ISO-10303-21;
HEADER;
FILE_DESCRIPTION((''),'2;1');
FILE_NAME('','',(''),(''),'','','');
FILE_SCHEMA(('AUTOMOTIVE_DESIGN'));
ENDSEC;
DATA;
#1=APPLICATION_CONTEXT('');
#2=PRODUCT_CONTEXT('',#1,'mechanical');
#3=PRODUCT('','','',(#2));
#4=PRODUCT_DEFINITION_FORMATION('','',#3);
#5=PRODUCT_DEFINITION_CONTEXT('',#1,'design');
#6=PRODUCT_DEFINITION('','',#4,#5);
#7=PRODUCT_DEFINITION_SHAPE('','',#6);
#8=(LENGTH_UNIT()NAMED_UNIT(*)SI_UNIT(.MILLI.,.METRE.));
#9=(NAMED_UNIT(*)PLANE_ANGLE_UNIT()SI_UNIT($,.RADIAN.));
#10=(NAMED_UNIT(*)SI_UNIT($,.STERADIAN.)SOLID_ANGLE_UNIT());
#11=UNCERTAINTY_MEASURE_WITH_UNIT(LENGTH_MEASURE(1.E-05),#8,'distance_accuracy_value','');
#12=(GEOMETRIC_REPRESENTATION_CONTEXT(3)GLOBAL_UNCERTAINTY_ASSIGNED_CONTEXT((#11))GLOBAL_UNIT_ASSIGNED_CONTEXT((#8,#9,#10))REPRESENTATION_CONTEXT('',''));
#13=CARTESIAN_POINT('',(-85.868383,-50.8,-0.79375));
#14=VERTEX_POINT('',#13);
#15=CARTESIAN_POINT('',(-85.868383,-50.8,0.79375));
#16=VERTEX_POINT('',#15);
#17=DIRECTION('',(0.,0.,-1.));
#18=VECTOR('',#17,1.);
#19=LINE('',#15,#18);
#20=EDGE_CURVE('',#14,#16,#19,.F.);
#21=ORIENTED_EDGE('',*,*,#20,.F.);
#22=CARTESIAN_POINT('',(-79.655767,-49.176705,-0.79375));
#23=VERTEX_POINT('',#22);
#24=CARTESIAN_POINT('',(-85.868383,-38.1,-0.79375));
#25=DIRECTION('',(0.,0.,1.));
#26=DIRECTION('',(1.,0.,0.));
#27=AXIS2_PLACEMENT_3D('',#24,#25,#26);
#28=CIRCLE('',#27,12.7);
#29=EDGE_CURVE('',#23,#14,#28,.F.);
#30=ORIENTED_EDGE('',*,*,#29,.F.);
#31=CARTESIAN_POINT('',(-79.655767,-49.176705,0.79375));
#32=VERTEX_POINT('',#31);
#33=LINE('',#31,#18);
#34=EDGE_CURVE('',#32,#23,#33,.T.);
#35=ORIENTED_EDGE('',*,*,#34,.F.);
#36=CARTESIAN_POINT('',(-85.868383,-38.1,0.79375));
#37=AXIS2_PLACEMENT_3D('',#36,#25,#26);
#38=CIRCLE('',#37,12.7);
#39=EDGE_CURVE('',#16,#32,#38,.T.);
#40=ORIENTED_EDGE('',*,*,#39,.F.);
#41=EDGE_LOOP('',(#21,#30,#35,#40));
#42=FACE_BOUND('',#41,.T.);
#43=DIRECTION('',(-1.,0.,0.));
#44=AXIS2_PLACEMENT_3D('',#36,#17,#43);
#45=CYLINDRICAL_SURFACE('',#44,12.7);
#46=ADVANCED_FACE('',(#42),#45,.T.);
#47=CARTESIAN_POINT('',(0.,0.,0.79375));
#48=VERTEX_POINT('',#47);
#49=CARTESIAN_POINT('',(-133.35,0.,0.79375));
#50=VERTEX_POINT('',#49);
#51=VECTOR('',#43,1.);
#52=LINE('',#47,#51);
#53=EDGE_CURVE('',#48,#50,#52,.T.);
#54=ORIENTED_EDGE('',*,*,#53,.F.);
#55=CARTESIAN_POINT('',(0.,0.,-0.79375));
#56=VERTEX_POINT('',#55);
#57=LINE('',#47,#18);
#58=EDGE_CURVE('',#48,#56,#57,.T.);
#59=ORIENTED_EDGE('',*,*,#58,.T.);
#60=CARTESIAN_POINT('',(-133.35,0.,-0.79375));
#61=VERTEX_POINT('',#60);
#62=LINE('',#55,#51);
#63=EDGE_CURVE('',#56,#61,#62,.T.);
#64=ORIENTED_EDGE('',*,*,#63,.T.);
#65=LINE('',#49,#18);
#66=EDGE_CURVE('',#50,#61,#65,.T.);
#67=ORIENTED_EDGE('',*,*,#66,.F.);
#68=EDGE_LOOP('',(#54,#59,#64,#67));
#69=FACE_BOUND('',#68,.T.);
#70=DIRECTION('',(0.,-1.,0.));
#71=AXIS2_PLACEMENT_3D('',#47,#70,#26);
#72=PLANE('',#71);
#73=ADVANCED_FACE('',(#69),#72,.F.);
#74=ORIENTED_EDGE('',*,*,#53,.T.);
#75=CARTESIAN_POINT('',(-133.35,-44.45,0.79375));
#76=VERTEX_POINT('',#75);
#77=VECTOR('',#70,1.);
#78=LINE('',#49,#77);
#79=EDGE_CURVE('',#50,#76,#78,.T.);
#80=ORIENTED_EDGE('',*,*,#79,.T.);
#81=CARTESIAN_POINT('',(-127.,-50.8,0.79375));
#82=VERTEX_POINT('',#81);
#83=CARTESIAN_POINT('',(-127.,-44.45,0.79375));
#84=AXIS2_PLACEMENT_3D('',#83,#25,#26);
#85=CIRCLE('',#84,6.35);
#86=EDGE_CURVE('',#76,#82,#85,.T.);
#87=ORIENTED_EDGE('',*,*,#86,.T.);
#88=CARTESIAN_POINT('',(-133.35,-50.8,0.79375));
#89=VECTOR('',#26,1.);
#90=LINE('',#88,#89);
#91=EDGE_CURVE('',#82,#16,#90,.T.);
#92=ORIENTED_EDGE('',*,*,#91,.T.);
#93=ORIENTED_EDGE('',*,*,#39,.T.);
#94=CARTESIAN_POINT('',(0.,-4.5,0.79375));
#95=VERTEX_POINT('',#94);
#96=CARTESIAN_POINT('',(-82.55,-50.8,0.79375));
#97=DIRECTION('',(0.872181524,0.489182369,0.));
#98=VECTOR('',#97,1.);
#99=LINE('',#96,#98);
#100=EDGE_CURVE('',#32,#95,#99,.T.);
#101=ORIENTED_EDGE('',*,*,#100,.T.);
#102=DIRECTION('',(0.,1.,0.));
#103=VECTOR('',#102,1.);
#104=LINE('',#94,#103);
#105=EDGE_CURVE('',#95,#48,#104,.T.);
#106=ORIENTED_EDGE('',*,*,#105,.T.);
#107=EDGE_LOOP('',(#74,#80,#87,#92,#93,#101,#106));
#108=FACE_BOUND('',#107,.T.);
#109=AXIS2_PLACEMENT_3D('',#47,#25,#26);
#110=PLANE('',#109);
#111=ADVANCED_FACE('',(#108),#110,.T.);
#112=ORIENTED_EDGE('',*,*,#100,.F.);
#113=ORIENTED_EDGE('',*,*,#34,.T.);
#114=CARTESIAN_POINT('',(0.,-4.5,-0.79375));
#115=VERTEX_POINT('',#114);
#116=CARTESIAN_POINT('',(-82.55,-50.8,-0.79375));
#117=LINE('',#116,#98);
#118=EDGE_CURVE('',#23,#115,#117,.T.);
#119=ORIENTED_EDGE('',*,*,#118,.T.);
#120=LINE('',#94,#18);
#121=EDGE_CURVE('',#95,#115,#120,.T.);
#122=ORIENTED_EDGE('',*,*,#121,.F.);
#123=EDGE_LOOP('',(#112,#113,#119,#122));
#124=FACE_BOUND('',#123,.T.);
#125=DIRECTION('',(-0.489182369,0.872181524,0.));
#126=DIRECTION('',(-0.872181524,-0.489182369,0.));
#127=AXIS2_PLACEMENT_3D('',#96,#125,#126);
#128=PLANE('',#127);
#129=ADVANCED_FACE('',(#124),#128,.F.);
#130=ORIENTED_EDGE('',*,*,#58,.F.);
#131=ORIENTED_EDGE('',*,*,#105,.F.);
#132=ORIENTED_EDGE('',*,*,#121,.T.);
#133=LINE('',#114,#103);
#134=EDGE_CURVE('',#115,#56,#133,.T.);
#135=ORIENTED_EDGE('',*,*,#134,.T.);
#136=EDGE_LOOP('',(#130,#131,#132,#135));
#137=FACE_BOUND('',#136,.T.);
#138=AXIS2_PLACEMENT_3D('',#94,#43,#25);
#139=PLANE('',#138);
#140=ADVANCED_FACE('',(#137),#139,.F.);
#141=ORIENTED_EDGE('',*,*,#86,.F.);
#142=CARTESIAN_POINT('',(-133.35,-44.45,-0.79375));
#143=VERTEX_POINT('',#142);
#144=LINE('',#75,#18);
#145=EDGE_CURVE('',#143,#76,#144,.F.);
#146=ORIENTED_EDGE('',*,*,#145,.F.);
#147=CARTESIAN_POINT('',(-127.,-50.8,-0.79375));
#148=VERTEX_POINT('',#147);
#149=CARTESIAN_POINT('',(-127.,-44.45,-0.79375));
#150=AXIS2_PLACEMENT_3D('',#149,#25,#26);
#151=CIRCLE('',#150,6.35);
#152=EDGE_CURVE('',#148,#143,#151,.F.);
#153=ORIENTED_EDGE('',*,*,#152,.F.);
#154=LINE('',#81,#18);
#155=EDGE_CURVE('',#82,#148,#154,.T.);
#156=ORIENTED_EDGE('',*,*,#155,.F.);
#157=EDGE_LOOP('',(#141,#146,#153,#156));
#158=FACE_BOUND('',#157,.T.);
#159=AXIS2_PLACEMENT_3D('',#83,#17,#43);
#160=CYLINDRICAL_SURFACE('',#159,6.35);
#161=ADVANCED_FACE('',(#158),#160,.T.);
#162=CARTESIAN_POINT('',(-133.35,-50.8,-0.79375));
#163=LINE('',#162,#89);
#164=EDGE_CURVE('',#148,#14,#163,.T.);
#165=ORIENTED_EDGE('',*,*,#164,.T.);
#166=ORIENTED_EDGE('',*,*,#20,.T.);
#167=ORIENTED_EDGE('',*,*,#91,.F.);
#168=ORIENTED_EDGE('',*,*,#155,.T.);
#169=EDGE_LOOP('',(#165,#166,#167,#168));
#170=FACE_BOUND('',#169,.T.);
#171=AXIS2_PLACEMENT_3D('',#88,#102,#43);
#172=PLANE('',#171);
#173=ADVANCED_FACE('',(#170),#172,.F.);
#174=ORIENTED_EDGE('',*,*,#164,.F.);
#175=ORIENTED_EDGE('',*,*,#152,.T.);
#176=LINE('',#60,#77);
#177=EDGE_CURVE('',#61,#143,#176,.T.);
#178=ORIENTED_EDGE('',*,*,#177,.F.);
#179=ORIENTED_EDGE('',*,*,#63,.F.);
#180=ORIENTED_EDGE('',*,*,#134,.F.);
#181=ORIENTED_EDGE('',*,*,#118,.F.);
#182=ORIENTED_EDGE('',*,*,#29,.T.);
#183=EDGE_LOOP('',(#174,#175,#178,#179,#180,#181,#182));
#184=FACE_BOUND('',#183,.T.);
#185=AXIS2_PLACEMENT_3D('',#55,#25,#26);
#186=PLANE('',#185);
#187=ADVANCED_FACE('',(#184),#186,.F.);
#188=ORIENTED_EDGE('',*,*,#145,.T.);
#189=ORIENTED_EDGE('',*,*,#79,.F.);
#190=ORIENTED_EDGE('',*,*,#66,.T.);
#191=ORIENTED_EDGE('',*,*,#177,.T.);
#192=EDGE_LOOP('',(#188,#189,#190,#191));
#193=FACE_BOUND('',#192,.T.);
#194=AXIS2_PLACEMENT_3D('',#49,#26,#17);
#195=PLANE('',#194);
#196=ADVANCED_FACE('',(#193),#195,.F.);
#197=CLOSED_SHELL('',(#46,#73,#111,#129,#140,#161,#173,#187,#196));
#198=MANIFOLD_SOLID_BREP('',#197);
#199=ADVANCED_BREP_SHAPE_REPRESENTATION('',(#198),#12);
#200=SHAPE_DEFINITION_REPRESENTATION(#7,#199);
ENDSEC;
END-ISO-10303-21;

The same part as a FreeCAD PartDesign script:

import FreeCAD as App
import Part
import Sketcher

V = App.Vector
Q = App.Units.Quantity


def edges_at(feature, points):
    """Names of the edges that pass closest to the given points."""
    edges = feature.Shape.Edges
    near = lambda p: min(range(len(edges)), key=lambda i: edges[i].distToShape(Part.Vertex(*p))[0])
    return sorted({f"Edge{near(p) + 1}" for p in points})

doc = App.newDocument("Part")
body = doc.addObject("PartDesign::Body", "Body")

# Sketch on XY plane
sketch1 = body.newObject("Sketcher::SketchObject", "Sketch")
sketch1.AttachmentSupport = (doc.getObject("XY_Plane"), [""])
sketch1.MapMode = "FlatFace"
sketch1.addGeometry([
    Part.LineSegment(V(0, 0, 0), V(-133.35, 0, 0)),  # 0
    Part.LineSegment(V(-133.35, 0, 0), V(-133.35, -50.8, 0)),  # 1
    Part.LineSegment(V(-133.35, -50.8, 0), V(-82.55, -50.8, 0)),  # 2
    Part.LineSegment(V(-82.55, -50.8, 0), V(0, -4.5, 0)),  # 3
    Part.LineSegment(V(0, -4.5, 0), V(0, 0, 0)),  # 4
], False)
sketch1.addConstraint([
    Sketcher.Constraint("Coincident", 0, 2, 1, 1),
    Sketcher.Constraint("Coincident", 1, 2, 2, 1),
    Sketcher.Constraint("Coincident", 2, 2, 3, 1),
    Sketcher.Constraint("Coincident", 3, 2, 4, 1),
    Sketcher.Constraint("Coincident", 4, 2, 0, 1),
    Sketcher.Constraint("Horizontal", 0),
    Sketcher.Constraint("Vertical", 1),
    Sketcher.Constraint("Horizontal", 2),
    Sketcher.Constraint("Vertical", 4),
    Sketcher.Constraint("Coincident", 4, 2, -1, 1),
    Sketcher.Constraint("Equal", 2, 1),
    Sketcher.Constraint("DistanceX", 2, 1, 2, 2, Q("2 in")),
    Sketcher.Constraint("DistanceX", 0, 2, 0, 1, Q("5.25 in")),
    Sketcher.Constraint("DistanceY", 4, 1, 4, 2, 4.5),
])
pad1 = body.newObject("PartDesign::Pad", "Pad")
pad1.Profile = sketch1
pad1.Length = Q("0.0625 in")
pad1.Midplane = True
doc.recompute()

fillet = body.newObject("PartDesign::Fillet", "Fillet")
fillet.Base = (pad1, edges_at(pad1, [(-133.35, -50.8, 0)]))
fillet.Radius = Q("0.25 in")
doc.recompute()

fillet2 = body.newObject("PartDesign::Fillet", "Fillet001")
fillet2.Base = (fillet, edges_at(fillet, [(-82.55, -50.8, 0)]))
fillet2.Radius = Q("0.5 in")

doc.recompute()
